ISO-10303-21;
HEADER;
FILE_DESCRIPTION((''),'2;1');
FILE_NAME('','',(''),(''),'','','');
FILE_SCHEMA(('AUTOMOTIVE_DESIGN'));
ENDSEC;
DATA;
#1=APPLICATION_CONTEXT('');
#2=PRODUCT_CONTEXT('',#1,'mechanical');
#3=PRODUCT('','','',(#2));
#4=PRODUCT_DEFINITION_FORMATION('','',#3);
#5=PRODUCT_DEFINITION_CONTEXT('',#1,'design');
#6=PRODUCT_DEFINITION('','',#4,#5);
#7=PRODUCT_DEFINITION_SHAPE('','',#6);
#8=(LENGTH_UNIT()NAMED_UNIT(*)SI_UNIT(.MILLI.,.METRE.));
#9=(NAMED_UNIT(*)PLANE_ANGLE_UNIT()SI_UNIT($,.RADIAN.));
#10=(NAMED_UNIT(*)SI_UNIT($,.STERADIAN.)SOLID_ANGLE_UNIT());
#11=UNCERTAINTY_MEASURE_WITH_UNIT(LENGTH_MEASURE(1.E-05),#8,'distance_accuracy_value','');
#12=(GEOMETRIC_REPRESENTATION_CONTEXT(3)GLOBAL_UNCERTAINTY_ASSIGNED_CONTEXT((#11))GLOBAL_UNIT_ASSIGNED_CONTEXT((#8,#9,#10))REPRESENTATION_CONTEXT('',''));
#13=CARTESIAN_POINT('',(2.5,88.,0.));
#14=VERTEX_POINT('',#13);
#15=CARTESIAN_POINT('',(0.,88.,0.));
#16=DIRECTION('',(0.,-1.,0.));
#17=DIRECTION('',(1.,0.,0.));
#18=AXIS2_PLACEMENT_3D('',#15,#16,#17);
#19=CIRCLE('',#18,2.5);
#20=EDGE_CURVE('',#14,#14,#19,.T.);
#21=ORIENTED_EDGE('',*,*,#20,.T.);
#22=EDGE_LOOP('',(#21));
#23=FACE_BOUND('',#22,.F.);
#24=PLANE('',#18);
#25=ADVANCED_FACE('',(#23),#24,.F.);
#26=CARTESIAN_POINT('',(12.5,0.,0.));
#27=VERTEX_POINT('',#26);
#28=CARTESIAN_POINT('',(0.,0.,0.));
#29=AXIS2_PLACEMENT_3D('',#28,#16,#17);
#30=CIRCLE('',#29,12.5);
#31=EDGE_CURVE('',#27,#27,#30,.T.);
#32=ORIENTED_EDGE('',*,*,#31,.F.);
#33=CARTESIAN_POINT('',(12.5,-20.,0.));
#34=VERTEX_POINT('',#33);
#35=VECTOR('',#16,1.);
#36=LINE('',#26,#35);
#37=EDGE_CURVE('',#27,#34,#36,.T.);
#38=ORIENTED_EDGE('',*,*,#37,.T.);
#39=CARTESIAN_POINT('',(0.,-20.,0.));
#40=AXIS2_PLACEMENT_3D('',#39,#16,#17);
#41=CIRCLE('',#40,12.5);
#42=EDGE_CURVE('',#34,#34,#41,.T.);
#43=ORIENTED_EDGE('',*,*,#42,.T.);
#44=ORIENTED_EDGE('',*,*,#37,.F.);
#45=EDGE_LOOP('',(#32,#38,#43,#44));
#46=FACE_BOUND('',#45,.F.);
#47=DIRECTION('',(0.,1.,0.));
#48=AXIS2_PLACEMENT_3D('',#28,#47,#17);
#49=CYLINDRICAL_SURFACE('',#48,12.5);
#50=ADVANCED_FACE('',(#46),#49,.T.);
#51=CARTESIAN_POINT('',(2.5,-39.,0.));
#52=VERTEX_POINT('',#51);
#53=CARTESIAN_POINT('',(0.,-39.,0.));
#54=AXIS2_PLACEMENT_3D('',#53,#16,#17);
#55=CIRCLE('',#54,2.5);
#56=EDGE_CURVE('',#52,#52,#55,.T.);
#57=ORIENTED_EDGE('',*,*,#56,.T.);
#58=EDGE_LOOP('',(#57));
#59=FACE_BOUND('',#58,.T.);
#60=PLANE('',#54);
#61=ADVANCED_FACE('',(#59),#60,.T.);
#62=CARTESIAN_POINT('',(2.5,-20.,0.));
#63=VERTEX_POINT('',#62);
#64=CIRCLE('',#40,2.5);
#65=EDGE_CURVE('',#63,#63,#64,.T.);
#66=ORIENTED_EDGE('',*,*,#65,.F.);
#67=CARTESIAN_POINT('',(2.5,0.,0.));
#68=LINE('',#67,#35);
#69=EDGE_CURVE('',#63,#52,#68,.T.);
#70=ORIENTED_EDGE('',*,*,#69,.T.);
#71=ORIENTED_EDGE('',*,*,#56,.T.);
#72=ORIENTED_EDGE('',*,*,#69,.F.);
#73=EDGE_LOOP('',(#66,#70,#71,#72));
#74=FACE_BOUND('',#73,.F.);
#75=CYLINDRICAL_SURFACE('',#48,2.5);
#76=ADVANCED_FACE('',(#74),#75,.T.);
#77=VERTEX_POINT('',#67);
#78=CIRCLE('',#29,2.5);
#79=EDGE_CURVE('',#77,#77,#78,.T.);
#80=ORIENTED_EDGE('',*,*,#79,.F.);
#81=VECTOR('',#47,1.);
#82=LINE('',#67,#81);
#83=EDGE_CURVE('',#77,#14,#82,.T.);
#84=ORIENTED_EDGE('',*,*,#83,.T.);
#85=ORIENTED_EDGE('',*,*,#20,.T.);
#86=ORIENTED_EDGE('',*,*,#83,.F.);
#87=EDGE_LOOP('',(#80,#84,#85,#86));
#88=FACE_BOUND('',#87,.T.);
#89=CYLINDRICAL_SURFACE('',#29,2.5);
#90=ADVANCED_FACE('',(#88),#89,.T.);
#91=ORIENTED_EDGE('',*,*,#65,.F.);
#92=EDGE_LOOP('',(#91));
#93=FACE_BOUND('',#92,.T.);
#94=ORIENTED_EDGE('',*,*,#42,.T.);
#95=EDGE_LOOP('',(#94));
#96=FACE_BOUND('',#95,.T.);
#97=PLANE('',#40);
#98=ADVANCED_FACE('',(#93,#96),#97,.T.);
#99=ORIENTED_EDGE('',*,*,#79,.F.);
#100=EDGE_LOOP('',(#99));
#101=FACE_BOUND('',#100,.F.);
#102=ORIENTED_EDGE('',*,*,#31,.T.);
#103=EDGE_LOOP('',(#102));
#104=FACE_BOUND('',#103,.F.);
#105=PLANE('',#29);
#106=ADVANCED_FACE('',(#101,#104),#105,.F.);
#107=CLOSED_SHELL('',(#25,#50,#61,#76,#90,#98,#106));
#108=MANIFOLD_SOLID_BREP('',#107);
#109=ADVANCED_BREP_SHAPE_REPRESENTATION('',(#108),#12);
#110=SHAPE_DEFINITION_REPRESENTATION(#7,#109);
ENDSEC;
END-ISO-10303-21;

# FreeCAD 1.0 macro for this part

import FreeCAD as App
import Part
import Sketcher

doc = App.newDocument("Part")
body = doc.addObject("PartDesign::Body", "Body")

# Sketch on XZ plane
sketch1 = body.newObject("Sketcher::SketchObject", "Sketch")
sketch1.AttachmentSupport = (doc.getObject("XZ_Plane"), [""])
sketch1.MapMode = "FlatFace"
sketch1.addGeometry(Part.Circle(App.Vector(0, 0, 0), App.Vector(0, 0, 1), 2.5), False)
sketch1.addConstraint(Sketcher.Constraint("Coincident", 0, 3, -1, 1))
sketch1.addConstraint(Sketcher.Constraint("Diameter", 0, 5.0))
pad1 = body.newObject("PartDesign::Pad", "Pad")
pad1.Profile = sketch1
pad1.Length = 39

# Sketch on XZ plane
sketch2 = body.newObject("Sketcher::SketchObject", "Sketch001")
sketch2.AttachmentSupport = (doc.getObject("XZ_Plane"), [""])
sketch2.MapMode = "FlatFace"
sketch2.addGeometry(Part.Circle(App.Vector(0, 0, 0), App.Vector(0, 0, 1), 12.5), False)
sketch2.addGeometry(Part.Circle(App.Vector(0, 0, 0), App.Vector(0, 0, 1), 2.5), False)
sketch2.addConstraint(Sketcher.Constraint("Coincident", 0, 3, -1, 1))
sketch2.addConstraint(Sketcher.Constraint("Coincident", 1, 3, -1, 1))
sketch2.addConstraint(Sketcher.Constraint("Diameter", 0, 25.0))
sketch2.addConstraint(Sketcher.Constraint("Diameter", 1, 5.0))
pad2 = body.newObject("PartDesign::Pad", "Pad001")
pad2.Profile = sketch2
pad2.Length = 20

# Sketch on XZ plane
sketch3 = body.newObject("Sketcher::SketchObject", "Sketch002")
sketch3.AttachmentSupport = (doc.getObject("XZ_Plane"), [""])
sketch3.MapMode = "FlatFace"
sketch3.addGeometry(Part.Circle(App.Vector(0, 0, 0), App.Vector(0, 0, 1), 2.5), False)
sketch3.addConstraint(Sketcher.Constraint("Coincident", 0, 3, -1, 1))
sketch3.addConstraint(Sketcher.Constraint("Diameter", 0, 5.0))
pad3 = body.newObject("PartDesign::Pad", "Pad002")
pad3.Profile = sketch3
pad3.Length = 88
pad3.Reversed = True

doc.recompute()
